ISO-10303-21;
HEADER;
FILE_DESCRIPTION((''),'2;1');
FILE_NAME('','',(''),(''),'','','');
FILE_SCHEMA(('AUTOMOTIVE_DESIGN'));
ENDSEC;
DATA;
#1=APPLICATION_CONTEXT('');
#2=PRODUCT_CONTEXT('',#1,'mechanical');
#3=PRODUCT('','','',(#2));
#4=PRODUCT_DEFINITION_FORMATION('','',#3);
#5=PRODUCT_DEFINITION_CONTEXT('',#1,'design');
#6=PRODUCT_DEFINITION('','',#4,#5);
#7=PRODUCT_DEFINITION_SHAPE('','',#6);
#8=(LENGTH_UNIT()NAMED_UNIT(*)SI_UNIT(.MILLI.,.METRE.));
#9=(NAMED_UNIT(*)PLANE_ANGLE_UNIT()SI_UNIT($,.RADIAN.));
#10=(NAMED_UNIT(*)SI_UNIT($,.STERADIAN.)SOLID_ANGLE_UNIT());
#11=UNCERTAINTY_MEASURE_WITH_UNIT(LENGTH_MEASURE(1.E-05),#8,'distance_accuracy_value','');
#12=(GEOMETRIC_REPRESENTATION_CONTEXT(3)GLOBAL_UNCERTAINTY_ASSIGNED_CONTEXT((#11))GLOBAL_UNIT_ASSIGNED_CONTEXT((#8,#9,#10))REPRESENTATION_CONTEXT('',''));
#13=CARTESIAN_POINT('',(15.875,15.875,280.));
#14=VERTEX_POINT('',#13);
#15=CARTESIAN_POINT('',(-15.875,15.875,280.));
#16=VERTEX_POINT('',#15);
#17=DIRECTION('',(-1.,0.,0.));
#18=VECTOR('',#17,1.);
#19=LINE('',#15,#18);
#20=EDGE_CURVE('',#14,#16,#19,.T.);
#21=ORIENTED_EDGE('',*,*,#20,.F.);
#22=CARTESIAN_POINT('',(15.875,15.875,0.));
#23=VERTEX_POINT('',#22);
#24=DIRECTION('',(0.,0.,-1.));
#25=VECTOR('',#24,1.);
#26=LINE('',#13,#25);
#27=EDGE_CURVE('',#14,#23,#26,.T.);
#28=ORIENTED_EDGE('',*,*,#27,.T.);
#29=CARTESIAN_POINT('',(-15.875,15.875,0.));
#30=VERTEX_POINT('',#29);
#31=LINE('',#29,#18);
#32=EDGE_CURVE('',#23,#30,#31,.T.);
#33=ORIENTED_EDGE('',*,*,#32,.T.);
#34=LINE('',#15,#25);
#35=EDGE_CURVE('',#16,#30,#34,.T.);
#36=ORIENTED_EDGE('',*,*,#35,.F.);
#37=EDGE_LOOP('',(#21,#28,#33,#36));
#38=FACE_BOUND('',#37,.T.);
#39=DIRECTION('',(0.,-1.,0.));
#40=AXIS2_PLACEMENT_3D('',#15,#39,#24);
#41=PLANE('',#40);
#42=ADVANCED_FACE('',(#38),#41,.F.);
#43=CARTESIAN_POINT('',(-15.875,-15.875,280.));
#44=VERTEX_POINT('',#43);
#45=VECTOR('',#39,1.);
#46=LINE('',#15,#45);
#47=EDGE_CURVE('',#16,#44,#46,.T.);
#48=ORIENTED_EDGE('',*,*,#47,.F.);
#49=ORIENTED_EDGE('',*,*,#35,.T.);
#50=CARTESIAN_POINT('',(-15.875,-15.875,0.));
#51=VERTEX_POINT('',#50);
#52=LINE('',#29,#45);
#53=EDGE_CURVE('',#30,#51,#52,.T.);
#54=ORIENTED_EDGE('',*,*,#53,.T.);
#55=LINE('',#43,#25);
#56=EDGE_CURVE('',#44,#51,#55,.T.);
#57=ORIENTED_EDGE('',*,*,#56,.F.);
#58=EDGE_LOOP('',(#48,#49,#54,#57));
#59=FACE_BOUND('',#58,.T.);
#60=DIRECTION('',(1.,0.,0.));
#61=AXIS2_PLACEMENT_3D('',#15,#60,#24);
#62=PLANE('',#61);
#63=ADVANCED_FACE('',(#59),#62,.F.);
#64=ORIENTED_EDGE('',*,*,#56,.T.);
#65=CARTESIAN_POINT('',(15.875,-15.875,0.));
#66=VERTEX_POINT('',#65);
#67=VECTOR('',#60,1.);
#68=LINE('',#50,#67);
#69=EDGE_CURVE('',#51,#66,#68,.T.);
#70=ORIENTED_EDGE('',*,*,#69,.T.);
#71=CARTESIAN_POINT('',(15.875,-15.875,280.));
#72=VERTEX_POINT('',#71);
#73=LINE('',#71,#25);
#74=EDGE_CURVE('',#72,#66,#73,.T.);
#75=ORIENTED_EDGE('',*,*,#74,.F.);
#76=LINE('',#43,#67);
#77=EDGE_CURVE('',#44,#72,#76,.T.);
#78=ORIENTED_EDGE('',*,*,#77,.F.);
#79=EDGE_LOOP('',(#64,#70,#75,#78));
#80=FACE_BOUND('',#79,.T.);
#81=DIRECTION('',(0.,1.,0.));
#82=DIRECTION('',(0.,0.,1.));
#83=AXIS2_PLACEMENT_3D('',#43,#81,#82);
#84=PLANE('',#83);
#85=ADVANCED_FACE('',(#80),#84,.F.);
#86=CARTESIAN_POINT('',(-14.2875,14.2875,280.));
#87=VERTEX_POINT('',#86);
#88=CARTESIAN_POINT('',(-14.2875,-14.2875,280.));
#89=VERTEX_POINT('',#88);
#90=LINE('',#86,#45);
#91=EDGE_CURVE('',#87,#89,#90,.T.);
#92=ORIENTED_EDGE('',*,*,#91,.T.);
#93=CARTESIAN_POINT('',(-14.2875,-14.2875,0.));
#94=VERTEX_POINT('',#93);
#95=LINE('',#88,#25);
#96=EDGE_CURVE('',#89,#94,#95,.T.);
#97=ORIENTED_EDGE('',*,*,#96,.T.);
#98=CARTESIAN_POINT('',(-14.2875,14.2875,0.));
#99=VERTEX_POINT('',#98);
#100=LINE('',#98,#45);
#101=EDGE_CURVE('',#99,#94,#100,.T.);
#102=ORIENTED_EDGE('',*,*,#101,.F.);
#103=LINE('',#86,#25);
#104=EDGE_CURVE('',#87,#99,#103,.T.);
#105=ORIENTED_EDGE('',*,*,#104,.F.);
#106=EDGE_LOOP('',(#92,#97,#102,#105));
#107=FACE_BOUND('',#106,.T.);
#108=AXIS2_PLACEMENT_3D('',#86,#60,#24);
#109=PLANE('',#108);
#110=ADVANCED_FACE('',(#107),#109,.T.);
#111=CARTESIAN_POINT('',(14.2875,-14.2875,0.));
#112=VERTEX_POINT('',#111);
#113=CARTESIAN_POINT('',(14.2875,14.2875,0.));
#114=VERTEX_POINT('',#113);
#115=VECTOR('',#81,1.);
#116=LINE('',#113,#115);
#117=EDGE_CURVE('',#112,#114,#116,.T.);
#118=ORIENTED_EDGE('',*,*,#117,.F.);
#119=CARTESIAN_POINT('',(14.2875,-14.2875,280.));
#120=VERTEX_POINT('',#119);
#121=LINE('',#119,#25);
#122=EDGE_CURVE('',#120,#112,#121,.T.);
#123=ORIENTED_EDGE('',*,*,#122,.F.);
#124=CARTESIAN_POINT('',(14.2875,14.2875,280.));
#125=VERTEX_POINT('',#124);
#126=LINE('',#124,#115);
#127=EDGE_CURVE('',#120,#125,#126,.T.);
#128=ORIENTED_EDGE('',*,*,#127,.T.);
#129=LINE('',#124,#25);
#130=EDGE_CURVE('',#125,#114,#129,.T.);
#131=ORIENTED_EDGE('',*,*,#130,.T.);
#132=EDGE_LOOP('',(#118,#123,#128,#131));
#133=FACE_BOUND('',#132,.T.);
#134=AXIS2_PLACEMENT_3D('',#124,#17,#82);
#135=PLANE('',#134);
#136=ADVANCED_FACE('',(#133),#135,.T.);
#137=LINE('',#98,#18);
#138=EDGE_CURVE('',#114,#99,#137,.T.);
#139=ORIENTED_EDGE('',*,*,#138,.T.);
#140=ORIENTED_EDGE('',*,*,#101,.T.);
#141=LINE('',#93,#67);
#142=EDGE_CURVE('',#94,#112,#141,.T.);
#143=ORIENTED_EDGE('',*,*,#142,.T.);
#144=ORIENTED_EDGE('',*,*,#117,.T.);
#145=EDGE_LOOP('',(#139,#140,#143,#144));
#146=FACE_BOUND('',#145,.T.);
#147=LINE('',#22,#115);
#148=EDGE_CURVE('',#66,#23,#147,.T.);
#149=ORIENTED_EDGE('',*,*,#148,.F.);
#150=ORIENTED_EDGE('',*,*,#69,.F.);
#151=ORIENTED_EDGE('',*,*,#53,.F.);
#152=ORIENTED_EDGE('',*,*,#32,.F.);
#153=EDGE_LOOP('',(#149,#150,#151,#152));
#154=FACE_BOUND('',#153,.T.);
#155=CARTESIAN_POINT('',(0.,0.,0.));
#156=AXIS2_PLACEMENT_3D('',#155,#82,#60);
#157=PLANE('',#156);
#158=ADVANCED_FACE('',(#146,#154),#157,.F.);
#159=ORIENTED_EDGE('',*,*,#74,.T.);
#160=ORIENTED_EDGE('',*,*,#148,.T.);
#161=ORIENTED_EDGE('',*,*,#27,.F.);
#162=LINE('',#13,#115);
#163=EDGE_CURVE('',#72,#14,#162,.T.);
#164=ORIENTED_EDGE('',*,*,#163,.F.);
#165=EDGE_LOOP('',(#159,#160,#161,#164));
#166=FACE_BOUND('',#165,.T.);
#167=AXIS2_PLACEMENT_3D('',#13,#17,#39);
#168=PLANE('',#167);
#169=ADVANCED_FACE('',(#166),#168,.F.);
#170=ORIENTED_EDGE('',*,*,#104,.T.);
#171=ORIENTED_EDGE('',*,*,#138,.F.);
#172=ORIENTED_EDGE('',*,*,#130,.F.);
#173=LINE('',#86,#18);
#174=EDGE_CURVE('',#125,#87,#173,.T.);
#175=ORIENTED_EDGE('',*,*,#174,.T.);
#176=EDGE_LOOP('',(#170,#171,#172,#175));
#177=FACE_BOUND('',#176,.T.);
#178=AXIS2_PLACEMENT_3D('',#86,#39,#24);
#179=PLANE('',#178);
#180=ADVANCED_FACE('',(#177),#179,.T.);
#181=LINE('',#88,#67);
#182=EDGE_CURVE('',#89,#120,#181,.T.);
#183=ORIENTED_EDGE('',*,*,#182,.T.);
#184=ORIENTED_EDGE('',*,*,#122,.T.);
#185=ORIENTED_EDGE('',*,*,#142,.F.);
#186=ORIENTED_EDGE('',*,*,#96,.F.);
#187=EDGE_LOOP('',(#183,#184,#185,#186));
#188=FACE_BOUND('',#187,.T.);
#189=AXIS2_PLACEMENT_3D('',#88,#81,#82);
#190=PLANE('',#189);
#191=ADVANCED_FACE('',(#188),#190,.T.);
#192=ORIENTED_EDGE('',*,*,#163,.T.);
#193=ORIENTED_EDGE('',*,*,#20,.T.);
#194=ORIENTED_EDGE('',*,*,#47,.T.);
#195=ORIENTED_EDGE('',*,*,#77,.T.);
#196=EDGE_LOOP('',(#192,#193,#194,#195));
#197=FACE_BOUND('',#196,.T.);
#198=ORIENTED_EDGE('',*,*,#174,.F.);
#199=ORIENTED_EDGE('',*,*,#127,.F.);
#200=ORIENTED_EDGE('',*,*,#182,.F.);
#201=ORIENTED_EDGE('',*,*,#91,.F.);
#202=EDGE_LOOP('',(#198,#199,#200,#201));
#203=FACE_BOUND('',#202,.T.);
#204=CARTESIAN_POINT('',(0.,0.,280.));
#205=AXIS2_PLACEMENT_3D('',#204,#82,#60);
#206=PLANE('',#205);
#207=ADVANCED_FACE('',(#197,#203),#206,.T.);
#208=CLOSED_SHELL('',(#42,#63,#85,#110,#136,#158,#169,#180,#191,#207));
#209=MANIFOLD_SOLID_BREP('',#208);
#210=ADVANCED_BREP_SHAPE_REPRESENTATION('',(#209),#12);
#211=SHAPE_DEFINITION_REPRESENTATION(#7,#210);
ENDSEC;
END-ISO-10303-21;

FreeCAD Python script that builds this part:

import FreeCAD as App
import Part
import Sketcher

V = App.Vector
Q = App.Units.Quantity

doc = App.newDocument("Part")
body = doc.addObject("PartDesign::Body", "Body")

# Sketch on XY plane
sketch1 = doc.addObject("Sketcher::SketchObject", "Sketch")
body.addObject(sketch1)
sketch1.AttachmentSupport = (doc.XY_Plane, [""])
sketch1.MapMode = "FlatFace"
sketch1.addGeometry([
    Part.LineSegment(V(-16, 16, 0), V(-16, -16, 0)),  # 0
    Part.LineSegment(V(-16, -16, 0), V(16, -16, 0)),  # 1
    Part.LineSegment(V(16, -16, 0), V(16, 16, 0)),  # 2
    Part.LineSegment(V(16, 16, 0), V(-16, 16, 0)),  # 3
    Part.LineSegment(V(14, -14, 0), V(-14, -14, 0)),  # 4
    Part.LineSegment(V(-14, -14, 0), V(-14, 14, 0)),  # 5
    Part.LineSegment(V(-14, 14, 0), V(14, 14, 0)),  # 6
    Part.LineSegment(V(14, 14, 0), V(14, -14, 0)),  # 7
], False)
sketch1.addConstraint([
    Sketcher.Constraint("Coincident", 0, 2, 1, 1),
    Sketcher.Constraint("Coincident", 1, 2, 2, 1),
    Sketcher.Constraint("Coincident", 2, 2, 3, 1),
    Sketcher.Constraint("Coincident", 3, 2, 0, 1),
    Sketcher.Constraint("Coincident", 4, 2, 5, 1),
    Sketcher.Constraint("Coincident", 5, 2, 6, 1),
    Sketcher.Constraint("Coincident", 6, 2, 7, 1),
    Sketcher.Constraint("Coincident", 7, 2, 4, 1),
    Sketcher.Constraint("Vertical", 0),
    Sketcher.Constraint("Horizontal", 1),
    Sketcher.Constraint("Vertical", 2),
    Sketcher.Constraint("Horizontal", 3),
    Sketcher.Constraint("Horizontal", 4),
    Sketcher.Constraint("Vertical", 5),
    Sketcher.Constraint("Horizontal", 6),
    Sketcher.Constraint("Vertical", 7),
    Sketcher.Constraint("Symmetric", 0, 2, 2, 2, -1, 1),
    Sketcher.Constraint("Symmetric", 4, 2, 6, 2, -1, 1),
    Sketcher.Constraint("Equal", 3, 0),
    Sketcher.Constraint("Equal", 6, 5),
    Sketcher.Constraint("DistanceX", 1, 1, 1, 2, Q("1.25 in")),
    Sketcher.Constraint("DistanceX", 4, 2, 4, 1, Q("1.125 in")),
])
pad1 = doc.addObject("PartDesign::Pad", "Pad")
body.addObject(pad1)
pad1.Profile = sketch1
pad1.Length = 280

doc.recompute()
